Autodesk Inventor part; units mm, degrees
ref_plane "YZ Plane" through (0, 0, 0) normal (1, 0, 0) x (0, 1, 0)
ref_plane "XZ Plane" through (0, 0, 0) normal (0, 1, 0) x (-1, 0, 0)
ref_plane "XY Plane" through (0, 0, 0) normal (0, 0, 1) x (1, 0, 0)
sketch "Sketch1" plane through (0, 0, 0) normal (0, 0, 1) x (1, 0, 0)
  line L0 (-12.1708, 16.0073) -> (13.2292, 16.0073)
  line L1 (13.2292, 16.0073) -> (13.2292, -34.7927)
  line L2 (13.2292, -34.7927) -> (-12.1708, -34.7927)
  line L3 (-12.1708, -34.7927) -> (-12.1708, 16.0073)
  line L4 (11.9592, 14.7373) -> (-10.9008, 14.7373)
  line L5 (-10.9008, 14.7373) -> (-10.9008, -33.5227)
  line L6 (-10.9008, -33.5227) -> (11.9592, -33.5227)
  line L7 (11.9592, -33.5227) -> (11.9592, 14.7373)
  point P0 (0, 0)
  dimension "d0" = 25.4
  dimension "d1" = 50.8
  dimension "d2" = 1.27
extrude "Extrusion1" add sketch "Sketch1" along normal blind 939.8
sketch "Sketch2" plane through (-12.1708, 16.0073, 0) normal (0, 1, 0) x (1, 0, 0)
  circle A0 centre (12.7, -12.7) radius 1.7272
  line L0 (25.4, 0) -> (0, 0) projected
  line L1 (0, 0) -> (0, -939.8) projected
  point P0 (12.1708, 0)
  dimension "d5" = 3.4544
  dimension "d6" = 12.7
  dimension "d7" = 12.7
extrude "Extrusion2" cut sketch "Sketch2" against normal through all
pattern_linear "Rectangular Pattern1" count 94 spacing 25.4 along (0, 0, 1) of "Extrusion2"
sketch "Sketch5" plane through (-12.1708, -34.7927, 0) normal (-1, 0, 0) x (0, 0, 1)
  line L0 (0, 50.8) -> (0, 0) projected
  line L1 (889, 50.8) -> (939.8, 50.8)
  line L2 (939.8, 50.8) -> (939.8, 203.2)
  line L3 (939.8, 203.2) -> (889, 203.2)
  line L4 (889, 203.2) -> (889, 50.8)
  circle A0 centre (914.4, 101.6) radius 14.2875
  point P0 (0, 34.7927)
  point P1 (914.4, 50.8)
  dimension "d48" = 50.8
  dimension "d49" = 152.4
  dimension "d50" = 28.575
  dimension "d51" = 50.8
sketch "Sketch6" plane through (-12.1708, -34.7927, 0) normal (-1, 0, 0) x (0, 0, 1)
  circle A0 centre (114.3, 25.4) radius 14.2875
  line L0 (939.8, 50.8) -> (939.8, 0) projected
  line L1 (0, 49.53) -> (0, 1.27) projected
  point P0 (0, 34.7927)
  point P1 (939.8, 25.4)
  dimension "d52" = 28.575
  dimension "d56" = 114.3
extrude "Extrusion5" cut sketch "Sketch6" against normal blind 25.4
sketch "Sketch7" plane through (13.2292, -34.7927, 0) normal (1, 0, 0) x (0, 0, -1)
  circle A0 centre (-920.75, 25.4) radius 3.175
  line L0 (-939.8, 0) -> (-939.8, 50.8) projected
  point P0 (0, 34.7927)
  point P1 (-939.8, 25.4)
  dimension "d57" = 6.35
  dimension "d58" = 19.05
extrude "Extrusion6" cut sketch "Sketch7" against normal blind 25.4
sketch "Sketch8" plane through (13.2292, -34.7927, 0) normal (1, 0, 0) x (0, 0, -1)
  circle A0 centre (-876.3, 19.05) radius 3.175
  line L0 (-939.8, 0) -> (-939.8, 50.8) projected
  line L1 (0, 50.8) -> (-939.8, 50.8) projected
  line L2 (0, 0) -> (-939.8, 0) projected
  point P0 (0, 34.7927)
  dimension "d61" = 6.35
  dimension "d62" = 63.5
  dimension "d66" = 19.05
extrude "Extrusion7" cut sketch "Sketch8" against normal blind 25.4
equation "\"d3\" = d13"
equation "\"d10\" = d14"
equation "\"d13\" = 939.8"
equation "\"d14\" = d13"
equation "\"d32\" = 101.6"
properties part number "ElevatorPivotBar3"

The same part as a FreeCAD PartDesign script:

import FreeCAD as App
import Part
import Sketcher
Q = App.Units.Quantity


def add_polygon(sketch, points):
    """Adds a closed chain of lines whose ends are joined by coincident constraints."""
    first, n = sketch.GeometryCount, len(points)
    for a, b in zip(points, points[1:] + points[:1]):
        sketch.addGeometry(Part.LineSegment(App.Vector(*a, 0), App.Vector(*b, 0)), False)
    for i in range(n):
        sketch.addConstraint(Sketcher.Constraint("Coincident", first + i, 2, first + (i + 1) % n, 1))

doc = App.newDocument("Part")
params = doc.addObject("Spreadsheet::Sheet", "Params")
for row, (alias, value) in enumerate([
    ("sketch1_width", "1 in"),
    ("sketch1_height", "2 in"),
    ("pad1_length", "37 in"),
    ("sketch2_diameter", "0.136 in"),
    ("linearpattern_pitch", "1 in"),
    ("sketch3_diameter", "1.125 in"),
    ("pocket2_length", "1 in"),
    ("sketch4_diameter", "0.25 in"),
    ("pocket3_length", "1 in"),
    ("sketch5_diameter", "0.25 in"),
    ("pocket4_length", "1 in"),
], start=1):
    params.set(f"A{row}", alias)
    params.set(f"B{row}", "=" + value)
    params.setAlias(f"B{row}", alias)

body = doc.addObject("PartDesign::Body", "Body")

# Sketch on XY plane
sketch1 = body.newObject("Sketcher::SketchObject", "Sketch")
sketch1.AttachmentSupport = (doc.getObject("XY_Plane"), [""])
sketch1.MapMode = "FlatFace"
add_polygon(sketch1, [(13, 16), (-12, 16), (-12, -35), (13, -35)])  # lines 0-3
add_polygon(sketch1, [(-11, 15), (12, 15), (12, -34), (-11, -34)])  # lines 4-7
sketch1.addConstraint([
    Sketcher.Constraint("Horizontal", 0),
    Sketcher.Constraint("Vertical", 1),
    Sketcher.Constraint("Horizontal", 2),
    Sketcher.Constraint("Vertical", 3),
    Sketcher.Constraint("Horizontal", 4),
    Sketcher.Constraint("Vertical", 5),
    Sketcher.Constraint("Horizontal", 6),
    Sketcher.Constraint("Vertical", 7),
    Sketcher.Constraint("DistanceX", 0, 2, 0, 1, Q("1 in")),
    Sketcher.Constraint("DistanceY", 1, 2, 1, 1, Q("2 in")),
    Sketcher.Constraint("DistanceX", 4, 2, 3, 2, Q("0.05 in")),
    Sketcher.Constraint("DistanceY", 4, 2, 3, 2, Q("0.05 in")),
    Sketcher.Constraint("DistanceY", 2, 2, 5, 2, Q("0.05 in")),
    Sketcher.Constraint("DistanceX", 1, 2, 6, 2, Q("0.05 in")),
    Sketcher.Constraint("DistanceY", -1, 1, 0, 2, Q("0.6302 in")),
    Sketcher.Constraint("DistanceX", 0, 2, -1, 1, Q("12.1708 mm")),
])
sketch1.setExpression("Constraints[16]", "Params.sketch1_width")
sketch1.setExpression("Constraints[17]", "Params.sketch1_height")
pad1 = body.newObject("PartDesign::Pad", "Pad")
pad1.Profile = sketch1
pad1.setExpression("Length", "Params.pad1_length")

# Sketch on XZ plane
sketch2 = body.newObject("Sketcher::SketchObject", "Sketch001")
sketch2.AttachmentSupport = (doc.getObject("XZ_Plane"), [""])
sketch2.MapMode = "FlatFace"
sketch2.AttachmentOffset = App.Placement(App.Vector(0, 0, -0.6302087 * 25.4), App.Rotation())
sketch2.addGeometry(Part.Circle(App.Vector(0.5, 12.7, 0), App.Vector(0, 0, 1), 1.7), False)
sketch2.addConstraint([
    Sketcher.Constraint("Diameter", 0, Q("0.136 in")),
    Sketcher.Constraint("DistanceY", -1, 1, 0, 3, Q("0.5 in")),
    Sketcher.Constraint("DistanceX", -1, 1, 0, 3, Q("0.5292 mm")),
])
sketch2.setExpression("Constraints[0]", "Params.sketch2_diameter")
pocket1 = body.newObject("PartDesign::Pocket", "Pocket")
pocket1.Profile = sketch2
pocket1.Type = "ThroughAll"
pocket1.Reversed = True
doc.recompute()

linearpattern = body.newObject("PartDesign::LinearPattern", "LinearPattern")
linearpattern.Originals = [pocket1]
linearpattern.Direction = (doc.getObject("Z_Axis"), [""])
linearpattern.Mode = "offset"
linearpattern.setExpression("Offset", "Params.linearpattern_pitch")
linearpattern.Occurrences = 94
body.Tip = linearpattern

# Sketch on YZ plane
sketch3 = body.newObject("Sketcher::SketchObject", "Sketch002")
sketch3.AttachmentSupport = (doc.getObject("YZ_Plane"), [""])
sketch3.MapMode = "FlatFace"
sketch3.AttachmentOffset = App.Placement(App.Vector(0, 0, -12.1708), App.Rotation())
sketch3.addGeometry(Part.Circle(App.Vector(-9, 114, 0), App.Vector(0, 0, 1), 14), False)
sketch3.addConstraint([
    Sketcher.Constraint("Diameter", 0, Q("1.125 in")),
    Sketcher.Constraint("DistanceY", -1, 1, 0, 3, Q("4.5 in")),
    Sketcher.Constraint("DistanceX", 0, 3, -1, 1, Q("0.3698 in")),
])
sketch3.setExpression("Constraints[0]", "Params.sketch3_diameter")
pocket2 = body.newObject("PartDesign::Pocket", "Pocket001")
pocket2.Profile = sketch3
pocket2.setExpression("Length", "Params.pocket2_length")
pocket2.Reversed = True

# Sketch on YZ plane
sketch4 = body.newObject("Sketcher::SketchObject", "Sketch003")
sketch4.AttachmentSupport = (doc.getObject("YZ_Plane"), [""])
sketch4.MapMode = "FlatFace"
sketch4.AttachmentOffset = App.Placement(App.Vector(0, 0, 13.2292), App.Rotation())
sketch4.addGeometry(Part.Circle(App.Vector(-9.4, 920.8, 0), App.Vector(0, 0, 1), 3.2), False)
sketch4.addConstraint([
    Sketcher.Constraint("Diameter", 0, Q("0.25 in")),
    Sketcher.Constraint("DistanceY", -1, 1, 0, 3, Q("36.25 in")),
    Sketcher.Constraint("DistanceX", 0, 3, -1, 1, Q("0.3698 in")),
])
sketch4.setExpression("Constraints[0]", "Params.sketch4_diameter")
pocket3 = body.newObject("PartDesign::Pocket", "Pocket002")
pocket3.Profile = sketch4
pocket3.setExpression("Length", "Params.pocket3_length")

# Sketch on YZ plane
sketch5 = body.newObject("Sketcher::SketchObject", "Sketch004")
sketch5.AttachmentSupport = (doc.getObject("YZ_Plane"), [""])
sketch5.MapMode = "FlatFace"
sketch5.AttachmentOffset = App.Placement(App.Vector(0, 0, 13.2292), App.Rotation())
sketch5.addGeometry(Part.Circle(App.Vector(-15.7, 876.3, 0), App.Vector(0, 0, 1), 3.2), False)
sketch5.addConstraint([
    Sketcher.Constraint("Diameter", 0, Q("0.25 in")),
    Sketcher.Constraint("DistanceY", -1, 1, 0, 3, Q("34.5 in")),
    Sketcher.Constraint("DistanceX", 0, 3, -1, 1, Q("0.6198 in")),
])
sketch5.setExpression("Constraints[0]", "Params.sketch5_diameter")
pocket4 = body.newObject("PartDesign::Pocket", "Pocket003")
pocket4.Profile = sketch5
pocket4.setExpression("Length", "Params.pocket4_length")

doc.recompute()
